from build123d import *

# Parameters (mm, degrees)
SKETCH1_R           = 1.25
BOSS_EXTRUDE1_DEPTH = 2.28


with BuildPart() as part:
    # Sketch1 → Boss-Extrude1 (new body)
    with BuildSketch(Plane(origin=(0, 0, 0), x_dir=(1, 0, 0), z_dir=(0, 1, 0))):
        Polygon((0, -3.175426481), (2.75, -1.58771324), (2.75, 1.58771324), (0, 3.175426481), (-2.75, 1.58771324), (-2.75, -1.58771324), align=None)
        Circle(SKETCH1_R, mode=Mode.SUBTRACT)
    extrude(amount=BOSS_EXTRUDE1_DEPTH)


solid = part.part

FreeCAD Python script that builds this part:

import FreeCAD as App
import Part
import Sketcher

V = App.Vector
Q = App.Units.Quantity

doc = App.newDocument("Part")
body = doc.addObject("PartDesign::Body", "Body")

# Sketch on XZ plane
sketch1 = body.newObject("Sketcher::SketchObject", "Sketch")
sketch1.AttachmentSupport = (doc.getObject("XZ_Plane"), [""])
sketch1.MapMode = "FlatFace"
sketch1.addGeometry([
    Part.LineSegment(V(0, 3.2, 0), V(2.8, 1.6, 0)),  # 0
    Part.LineSegment(V(2.8, 1.6, 0), V(2.8, -1.6, 0)),  # 1
    Part.LineSegment(V(2.8, -1.6, 0), V(0, -3.2, 0)),  # 2
    Part.LineSegment(V(0, -3.2, 0), V(-2.8, -1.6, 0)),  # 3
    Part.LineSegment(V(-2.8, -1.6, 0), V(-2.8, 1.6, 0)),  # 4
    Part.LineSegment(V(-2.8, 1.6, 0), V(0, 3.2, 0)),  # 5
    Part.Circle(V(0, 0, 0), V(0, 0, 1), 1.2),  # 6
], False)
sketch1.addConstraint([
    Sketcher.Constraint("Coincident", 0, 2, 1, 1),
    Sketcher.Constraint("Coincident", 1, 2, 2, 1),
    Sketcher.Constraint("Coincident", 2, 2, 3, 1),
    Sketcher.Constraint("Coincident", 3, 2, 4, 1),
    Sketcher.Constraint("Coincident", 4, 2, 5, 1),
    Sketcher.Constraint("Coincident", 5, 2, 0, 1),
    Sketcher.Constraint("Vertical", 1),
    Sketcher.Constraint("Vertical", 4),
    Sketcher.Constraint("Coincident", 6, 3, -1, 1),
    Sketcher.Constraint("Symmetric", 0, 2, 3, 2, -1, 1),
    Sketcher.Constraint("Symmetric", 2, 2, 5, 2, -1, 1),
    Sketcher.Constraint("PointOnObject", 2, 2, -2),
    Sketcher.Constraint("Parallel", 2, 5),
    Sketcher.Constraint("Horizontal", 1, 2, 3, 2),
    Sketcher.Constraint("Diameter", 6, Q("2.5 mm")),
    Sketcher.Constraint("Angle", 0, Q("-30 deg")),
    Sketcher.Constraint("DistanceX", 3, 2, 1, 2, Q("5.5 mm")),
    Sketcher.Constraint("DistanceY", 1, 2, 1, 1, Q("3.175426 mm")),
])
pad1 = body.newObject("PartDesign::Pad", "Pad")
pad1.Profile = sketch1
pad1.Length = 2.28
pad1.Reversed = True

doc.recompute()
